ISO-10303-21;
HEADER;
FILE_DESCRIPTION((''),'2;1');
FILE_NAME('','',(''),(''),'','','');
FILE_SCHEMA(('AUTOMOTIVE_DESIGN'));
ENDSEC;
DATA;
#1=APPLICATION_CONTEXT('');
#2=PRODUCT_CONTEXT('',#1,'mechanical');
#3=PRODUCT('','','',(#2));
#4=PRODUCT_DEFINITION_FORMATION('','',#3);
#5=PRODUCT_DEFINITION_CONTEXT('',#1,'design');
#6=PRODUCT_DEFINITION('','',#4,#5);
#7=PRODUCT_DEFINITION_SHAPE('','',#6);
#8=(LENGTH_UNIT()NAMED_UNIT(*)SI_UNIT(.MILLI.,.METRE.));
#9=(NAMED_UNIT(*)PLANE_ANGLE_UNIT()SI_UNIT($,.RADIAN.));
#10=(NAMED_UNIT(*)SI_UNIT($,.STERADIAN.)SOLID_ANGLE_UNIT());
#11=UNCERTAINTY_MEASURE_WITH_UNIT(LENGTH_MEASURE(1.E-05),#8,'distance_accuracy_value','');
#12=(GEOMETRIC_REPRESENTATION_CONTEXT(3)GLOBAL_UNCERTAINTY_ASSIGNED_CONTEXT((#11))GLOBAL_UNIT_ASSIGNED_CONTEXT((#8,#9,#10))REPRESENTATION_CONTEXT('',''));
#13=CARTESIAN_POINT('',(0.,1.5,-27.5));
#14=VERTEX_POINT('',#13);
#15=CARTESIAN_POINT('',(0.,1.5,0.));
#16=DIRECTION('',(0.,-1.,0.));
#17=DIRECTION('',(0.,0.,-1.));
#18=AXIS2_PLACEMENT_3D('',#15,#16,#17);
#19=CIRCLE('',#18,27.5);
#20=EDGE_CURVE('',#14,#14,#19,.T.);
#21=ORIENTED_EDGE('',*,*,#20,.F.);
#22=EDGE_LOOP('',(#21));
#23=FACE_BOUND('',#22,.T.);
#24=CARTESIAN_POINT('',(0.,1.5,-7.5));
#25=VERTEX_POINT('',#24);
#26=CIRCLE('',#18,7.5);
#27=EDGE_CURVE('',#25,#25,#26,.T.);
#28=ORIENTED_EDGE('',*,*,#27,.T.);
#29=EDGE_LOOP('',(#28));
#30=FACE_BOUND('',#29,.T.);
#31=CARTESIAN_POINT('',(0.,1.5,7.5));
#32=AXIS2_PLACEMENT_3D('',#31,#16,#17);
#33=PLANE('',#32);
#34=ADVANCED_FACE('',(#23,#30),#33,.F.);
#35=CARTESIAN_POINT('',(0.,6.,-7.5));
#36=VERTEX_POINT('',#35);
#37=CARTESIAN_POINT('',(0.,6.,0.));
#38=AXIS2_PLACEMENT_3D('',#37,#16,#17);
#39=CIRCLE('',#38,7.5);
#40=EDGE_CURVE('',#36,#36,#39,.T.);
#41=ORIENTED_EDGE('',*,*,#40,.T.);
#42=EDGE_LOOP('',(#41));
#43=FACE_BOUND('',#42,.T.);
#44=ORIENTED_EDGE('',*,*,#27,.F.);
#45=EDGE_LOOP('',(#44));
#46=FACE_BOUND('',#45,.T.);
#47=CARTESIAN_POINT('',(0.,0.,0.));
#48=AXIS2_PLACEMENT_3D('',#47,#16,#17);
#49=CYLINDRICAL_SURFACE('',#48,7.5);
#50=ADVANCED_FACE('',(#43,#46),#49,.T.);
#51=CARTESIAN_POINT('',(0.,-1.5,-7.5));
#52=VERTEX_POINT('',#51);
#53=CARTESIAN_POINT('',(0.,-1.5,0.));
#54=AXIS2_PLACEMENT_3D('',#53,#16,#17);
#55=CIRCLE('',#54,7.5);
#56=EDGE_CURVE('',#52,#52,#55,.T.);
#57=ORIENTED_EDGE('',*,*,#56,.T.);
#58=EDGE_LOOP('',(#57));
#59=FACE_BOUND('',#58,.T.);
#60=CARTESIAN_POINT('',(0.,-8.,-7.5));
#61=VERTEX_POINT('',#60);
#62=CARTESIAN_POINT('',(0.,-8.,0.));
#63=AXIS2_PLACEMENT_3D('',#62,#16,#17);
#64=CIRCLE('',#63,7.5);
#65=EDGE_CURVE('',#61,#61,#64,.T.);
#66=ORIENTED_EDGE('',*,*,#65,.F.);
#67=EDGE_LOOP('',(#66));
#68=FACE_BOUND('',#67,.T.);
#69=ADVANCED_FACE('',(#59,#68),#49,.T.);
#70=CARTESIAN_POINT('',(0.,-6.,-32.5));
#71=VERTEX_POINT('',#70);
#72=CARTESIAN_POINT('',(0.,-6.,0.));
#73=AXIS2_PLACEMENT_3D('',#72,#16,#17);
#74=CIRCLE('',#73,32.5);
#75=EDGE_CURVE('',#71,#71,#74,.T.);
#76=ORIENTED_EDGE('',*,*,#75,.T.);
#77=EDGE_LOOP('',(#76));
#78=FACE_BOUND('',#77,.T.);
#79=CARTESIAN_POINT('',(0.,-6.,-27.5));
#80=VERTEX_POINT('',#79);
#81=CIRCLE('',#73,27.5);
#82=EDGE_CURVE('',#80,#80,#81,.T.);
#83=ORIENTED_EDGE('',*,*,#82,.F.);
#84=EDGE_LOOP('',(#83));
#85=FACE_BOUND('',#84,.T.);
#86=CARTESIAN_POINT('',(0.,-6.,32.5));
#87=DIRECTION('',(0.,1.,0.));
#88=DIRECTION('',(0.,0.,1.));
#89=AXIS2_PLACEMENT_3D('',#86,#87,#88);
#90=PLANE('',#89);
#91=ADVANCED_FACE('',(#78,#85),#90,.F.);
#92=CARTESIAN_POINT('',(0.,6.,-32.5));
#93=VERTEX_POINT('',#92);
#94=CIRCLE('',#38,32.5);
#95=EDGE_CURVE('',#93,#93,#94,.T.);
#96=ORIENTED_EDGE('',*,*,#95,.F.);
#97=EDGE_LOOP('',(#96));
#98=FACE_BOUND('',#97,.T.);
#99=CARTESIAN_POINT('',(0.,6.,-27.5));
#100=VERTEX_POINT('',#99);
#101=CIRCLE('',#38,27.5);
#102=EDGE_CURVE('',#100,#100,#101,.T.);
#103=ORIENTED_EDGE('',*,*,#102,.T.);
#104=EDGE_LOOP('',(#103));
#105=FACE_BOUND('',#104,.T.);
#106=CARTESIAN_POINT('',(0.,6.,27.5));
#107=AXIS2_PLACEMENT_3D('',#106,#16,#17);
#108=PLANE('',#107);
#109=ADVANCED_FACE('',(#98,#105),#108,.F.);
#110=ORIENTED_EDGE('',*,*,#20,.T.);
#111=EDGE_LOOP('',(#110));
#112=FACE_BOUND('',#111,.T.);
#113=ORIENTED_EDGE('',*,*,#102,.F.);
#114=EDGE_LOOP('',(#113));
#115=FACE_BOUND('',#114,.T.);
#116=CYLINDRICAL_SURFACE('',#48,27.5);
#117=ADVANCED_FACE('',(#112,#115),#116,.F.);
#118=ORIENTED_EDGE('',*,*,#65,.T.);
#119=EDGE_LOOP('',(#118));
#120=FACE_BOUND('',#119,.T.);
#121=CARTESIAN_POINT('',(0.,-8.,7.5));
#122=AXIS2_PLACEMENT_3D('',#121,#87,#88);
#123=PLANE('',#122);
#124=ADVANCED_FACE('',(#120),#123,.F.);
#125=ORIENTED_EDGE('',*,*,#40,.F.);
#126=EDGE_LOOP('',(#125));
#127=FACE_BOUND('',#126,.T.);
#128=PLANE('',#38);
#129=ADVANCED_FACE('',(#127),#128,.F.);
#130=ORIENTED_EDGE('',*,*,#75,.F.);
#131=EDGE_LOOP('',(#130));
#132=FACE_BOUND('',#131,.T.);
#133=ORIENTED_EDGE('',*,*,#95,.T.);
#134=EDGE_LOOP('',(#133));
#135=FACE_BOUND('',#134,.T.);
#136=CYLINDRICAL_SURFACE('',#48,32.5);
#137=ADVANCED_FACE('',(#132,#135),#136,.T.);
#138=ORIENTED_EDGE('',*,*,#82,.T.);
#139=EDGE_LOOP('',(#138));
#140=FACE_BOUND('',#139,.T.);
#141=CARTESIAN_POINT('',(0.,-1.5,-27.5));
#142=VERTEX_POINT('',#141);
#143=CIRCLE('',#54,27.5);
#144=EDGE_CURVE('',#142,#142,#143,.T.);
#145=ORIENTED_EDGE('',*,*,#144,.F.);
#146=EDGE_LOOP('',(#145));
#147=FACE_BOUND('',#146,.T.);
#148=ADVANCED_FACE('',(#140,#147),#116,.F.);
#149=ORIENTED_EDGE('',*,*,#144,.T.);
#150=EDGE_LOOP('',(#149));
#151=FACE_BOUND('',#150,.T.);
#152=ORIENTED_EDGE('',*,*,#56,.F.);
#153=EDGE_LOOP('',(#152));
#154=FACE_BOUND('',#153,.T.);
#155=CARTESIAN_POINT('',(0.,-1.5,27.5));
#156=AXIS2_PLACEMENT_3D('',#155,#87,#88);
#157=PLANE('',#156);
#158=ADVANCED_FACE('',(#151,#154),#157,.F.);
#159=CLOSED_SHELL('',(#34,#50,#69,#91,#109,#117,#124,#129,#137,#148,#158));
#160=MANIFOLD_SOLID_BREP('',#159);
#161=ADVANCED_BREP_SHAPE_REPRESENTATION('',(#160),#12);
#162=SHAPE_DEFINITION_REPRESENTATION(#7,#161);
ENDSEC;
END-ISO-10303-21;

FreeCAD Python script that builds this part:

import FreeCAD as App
import Part
import Sketcher
from FreeCAD import Vector

doc = App.newDocument("Part")
body = doc.addObject("PartDesign::Body", "Body")

# Sketch on YZ plane
sketch1 = body.newObject("Sketcher::SketchObject", "Sketch")
sketch1.AttachmentSupport = (doc.getObject("YZ_Plane"), [""])
sketch1.MapMode = "FlatFace"
sketch1.addGeometry([
    Part.LineSegment(Vector(6, 0, 0), Vector(6, 7.5, 0)),  # 0
    Part.LineSegment(Vector(6, 7.5, 0), Vector(1.5, 7.5, 0)),  # 1
    Part.LineSegment(Vector(1.5, 7.5, 0), Vector(1.5, 27.5, 0)),  # 2
    Part.LineSegment(Vector(1.5, 27.5, 0), Vector(6, 27.5, 0)),  # 3
    Part.LineSegment(Vector(6, 27.5, 0), Vector(6, 32.5, 0)),  # 4
    Part.LineSegment(Vector(6, 32.5, 0), Vector(-6, 32.5, 0)),  # 5
    Part.LineSegment(Vector(-6, 32.5, 0), Vector(-6, 27.5, 0)),  # 6
    Part.LineSegment(Vector(-6, 27.5, 0), Vector(-1.5, 27.5, 0)),  # 7
    Part.LineSegment(Vector(-1.5, 27.5, 0), Vector(-1.5, 7.5, 0)),  # 8
    Part.LineSegment(Vector(-1.5, 7.5, 0), Vector(-8, 7.5, 0)),  # 9
    Part.LineSegment(Vector(-8, 7.5, 0), Vector(-8, 0, 0)),  # 10
    Part.LineSegment(Vector(-8, 0, 0), Vector(6, 0, 0)),  # 11
], False)
sketch1.addConstraint([
    Sketcher.Constraint("Coincident", 0, 2, 1, 1),
    Sketcher.Constraint("Coincident", 1, 2, 2, 1),
    Sketcher.Constraint("Coincident", 2, 2, 3, 1),
    Sketcher.Constraint("Coincident", 3, 2, 4, 1),
    Sketcher.Constraint("Coincident", 4, 2, 5, 1),
    Sketcher.Constraint("Coincident", 5, 2, 6, 1),
    Sketcher.Constraint("Coincident", 6, 2, 7, 1),
    Sketcher.Constraint("Coincident", 7, 2, 8, 1),
    Sketcher.Constraint("Coincident", 8, 2, 9, 1),
    Sketcher.Constraint("Coincident", 9, 2, 10, 1),
    Sketcher.Constraint("Coincident", 10, 2, 11, 1),
    Sketcher.Constraint("Coincident", 11, 2, 0, 1),
    Sketcher.Constraint("Vertical", 0),
    Sketcher.Constraint("Horizontal", 1),
    Sketcher.Constraint("Vertical", 2),
    Sketcher.Constraint("Horizontal", 3),
    Sketcher.Constraint("Vertical", 4),
    Sketcher.Constraint("Horizontal", 5),
    Sketcher.Constraint("Vertical", 6),
    Sketcher.Constraint("Horizontal", 7),
    Sketcher.Constraint("Vertical", 8),
    Sketcher.Constraint("Horizontal", 9),
    Sketcher.Constraint("Vertical", 10),
    Sketcher.Constraint("Horizontal", 11),
    Sketcher.Constraint("Symmetric", 3, 2, 6, 2, -2),
    Sketcher.Constraint("Symmetric", 1, 2, 8, 2, -2),
    Sketcher.Constraint("PointOnObject", 10, 2, -1),
    Sketcher.Constraint("Vertical", 0, 2, 3, 2),
    Sketcher.Constraint("DistanceX", 5, 2, 5, 1, 12.0),
    Sketcher.Constraint("DistanceX", 11, 1, 11, 2, 14.0),
    Sketcher.Constraint("DistanceY", 2, 1, 2, 2, 20.0),
    Sketcher.Constraint("DistanceY", 4, 1, 4, 2, 5.0),
    Sketcher.Constraint("DistanceX", 1, 2, 1, 1, 4.5),
    Sketcher.Constraint("DistanceY", 0, 1, 0, 2, 7.5),
])
revolution = body.newObject("PartDesign::Revolution", "Revolution")
revolution.Profile = sketch1
revolution.ReferenceAxis = (sketch1, ["H_Axis"])
revolution.Angle = 360

doc.recompute()
